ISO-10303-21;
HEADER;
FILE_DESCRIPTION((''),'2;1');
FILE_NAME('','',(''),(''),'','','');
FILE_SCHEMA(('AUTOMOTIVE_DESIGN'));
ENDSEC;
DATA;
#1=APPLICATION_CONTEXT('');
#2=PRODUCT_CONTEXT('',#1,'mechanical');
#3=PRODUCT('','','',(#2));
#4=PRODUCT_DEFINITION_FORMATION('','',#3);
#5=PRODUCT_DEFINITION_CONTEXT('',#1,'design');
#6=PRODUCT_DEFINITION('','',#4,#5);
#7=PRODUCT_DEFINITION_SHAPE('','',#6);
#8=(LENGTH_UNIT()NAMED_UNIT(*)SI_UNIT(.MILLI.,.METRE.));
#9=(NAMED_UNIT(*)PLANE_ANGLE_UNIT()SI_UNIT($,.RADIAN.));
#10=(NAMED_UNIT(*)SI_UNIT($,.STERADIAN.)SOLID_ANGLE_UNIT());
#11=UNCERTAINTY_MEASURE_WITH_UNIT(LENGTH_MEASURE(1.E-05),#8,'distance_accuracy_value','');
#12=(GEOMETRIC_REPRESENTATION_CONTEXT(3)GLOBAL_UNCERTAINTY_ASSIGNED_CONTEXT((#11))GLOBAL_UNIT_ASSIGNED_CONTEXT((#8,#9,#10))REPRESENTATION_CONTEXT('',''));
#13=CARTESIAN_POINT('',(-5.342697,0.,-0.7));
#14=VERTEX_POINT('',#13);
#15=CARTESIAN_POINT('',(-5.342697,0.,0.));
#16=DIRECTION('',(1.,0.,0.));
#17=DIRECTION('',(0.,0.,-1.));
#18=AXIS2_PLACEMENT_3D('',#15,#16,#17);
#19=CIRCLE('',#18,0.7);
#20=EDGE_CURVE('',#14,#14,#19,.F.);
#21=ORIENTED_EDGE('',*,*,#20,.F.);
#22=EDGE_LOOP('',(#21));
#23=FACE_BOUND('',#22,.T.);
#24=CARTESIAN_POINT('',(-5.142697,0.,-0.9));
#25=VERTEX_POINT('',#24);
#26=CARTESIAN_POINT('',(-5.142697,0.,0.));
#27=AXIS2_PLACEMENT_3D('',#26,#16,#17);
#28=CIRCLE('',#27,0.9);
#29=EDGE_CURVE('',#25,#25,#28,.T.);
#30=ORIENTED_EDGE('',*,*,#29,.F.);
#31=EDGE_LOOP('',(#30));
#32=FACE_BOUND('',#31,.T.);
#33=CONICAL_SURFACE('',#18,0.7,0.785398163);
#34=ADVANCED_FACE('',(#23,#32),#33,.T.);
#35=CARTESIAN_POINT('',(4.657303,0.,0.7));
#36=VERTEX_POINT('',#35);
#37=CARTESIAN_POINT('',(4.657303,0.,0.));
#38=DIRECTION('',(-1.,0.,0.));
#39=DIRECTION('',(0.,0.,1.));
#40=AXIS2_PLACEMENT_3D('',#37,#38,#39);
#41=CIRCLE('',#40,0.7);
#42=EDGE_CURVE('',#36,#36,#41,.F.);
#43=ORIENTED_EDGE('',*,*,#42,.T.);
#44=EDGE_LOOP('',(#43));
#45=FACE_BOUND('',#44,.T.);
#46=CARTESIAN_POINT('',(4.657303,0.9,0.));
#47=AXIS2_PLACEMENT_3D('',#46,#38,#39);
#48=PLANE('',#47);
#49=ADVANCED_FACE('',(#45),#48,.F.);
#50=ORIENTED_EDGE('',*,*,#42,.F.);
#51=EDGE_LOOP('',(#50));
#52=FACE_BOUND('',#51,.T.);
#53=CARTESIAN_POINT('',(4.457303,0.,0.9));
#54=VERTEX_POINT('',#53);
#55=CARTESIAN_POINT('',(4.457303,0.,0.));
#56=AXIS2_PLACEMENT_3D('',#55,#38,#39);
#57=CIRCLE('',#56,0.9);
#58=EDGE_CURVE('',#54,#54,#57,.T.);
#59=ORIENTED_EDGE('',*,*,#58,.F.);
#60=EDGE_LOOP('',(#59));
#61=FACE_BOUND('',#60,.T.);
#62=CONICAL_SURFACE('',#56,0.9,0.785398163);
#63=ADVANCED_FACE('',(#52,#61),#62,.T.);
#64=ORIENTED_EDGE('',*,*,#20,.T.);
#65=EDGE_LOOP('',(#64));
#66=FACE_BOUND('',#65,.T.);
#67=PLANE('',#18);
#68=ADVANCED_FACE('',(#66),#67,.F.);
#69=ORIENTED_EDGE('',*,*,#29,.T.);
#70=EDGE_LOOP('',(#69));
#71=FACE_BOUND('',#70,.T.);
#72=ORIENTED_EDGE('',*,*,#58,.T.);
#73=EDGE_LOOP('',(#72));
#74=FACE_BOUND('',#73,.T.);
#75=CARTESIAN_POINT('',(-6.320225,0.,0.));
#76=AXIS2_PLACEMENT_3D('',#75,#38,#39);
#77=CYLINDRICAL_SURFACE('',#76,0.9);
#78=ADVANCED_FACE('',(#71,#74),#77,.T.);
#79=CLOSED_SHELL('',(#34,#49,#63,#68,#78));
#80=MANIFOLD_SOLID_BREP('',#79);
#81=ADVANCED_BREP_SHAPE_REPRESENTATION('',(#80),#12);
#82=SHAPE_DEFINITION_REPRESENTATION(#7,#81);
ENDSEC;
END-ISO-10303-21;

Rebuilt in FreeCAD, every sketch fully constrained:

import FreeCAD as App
import Part
import Sketcher
from FreeCAD import Vector


def edges_at(feature, points):
    """Names of the edges that pass closest to the given points."""
    edges = feature.Shape.Edges
    near = lambda p: min(range(len(edges)), key=lambda i: edges[i].distToShape(Part.Vertex(*p))[0])
    return sorted({f"Edge{near(p) + 1}" for p in points})

doc = App.newDocument("Part")
params = doc.addObject("Spreadsheet::Sheet", "Params")
for row, (alias, value) in enumerate([
    ("sketch1_width", "10 mm"),
    ("sketch1_height", "0.9 mm"),
    ("revolution_angle", "360 deg"),
    ("chamfer_size", "0.2 mm"),
], start=1):
    params.set(f"A{row}", alias)
    params.set(f"B{row}", "=" + value)
    params.setAlias(f"B{row}", alias)

body = doc.addObject("PartDesign::Body", "Body")

# Sketch on XY plane
sketch1 = body.newObject("Sketcher::SketchObject", "Sketch")
sketch1.AttachmentSupport = (doc.getObject("XY_Plane"), [""])
sketch1.MapMode = "FlatFace"
sketch1.addGeometry([
    Part.LineSegment(Vector(-5.3, 0.9, 0), Vector(-5.3, 0, 0)),
    Part.LineSegment(Vector(-5.3, 0, 0), Vector(4.7, 0, 0)),
    Part.LineSegment(Vector(4.7, 0, 0), Vector(4.7, 0.9, 0)),
    Part.LineSegment(Vector(4.7, 0.9, 0), Vector(-5.3, 0.9, 0)),
], False)
sketch1.addConstraint([
    Sketcher.Constraint("Coincident", 0, 2, 1, 1),
    Sketcher.Constraint("Coincident", 1, 2, 2, 1),
    Sketcher.Constraint("Coincident", 2, 2, 3, 1),
    Sketcher.Constraint("Coincident", 3, 2, 0, 1),
    Sketcher.Constraint("Vertical", 0),
    Sketcher.Constraint("Horizontal", 1),
    Sketcher.Constraint("Vertical", 2),
    Sketcher.Constraint("Horizontal", 3),
    Sketcher.Constraint("PointOnObject", 0, 2, -1),
    Sketcher.Constraint("DistanceX", 1, 1, 1, 2, 10.0),
    Sketcher.Constraint("DistanceY", 0, 2, 0, 1, 0.9),
    Sketcher.Constraint("DistanceX", 0, 2, -1, 1, 5.342697),
])
sketch1.setExpression("Constraints[9]", "Params.sketch1_width")
sketch1.setExpression("Constraints[10]", "Params.sketch1_height")
revolution = body.newObject("PartDesign::Revolution", "Revolution")
revolution.Profile = sketch1
revolution.ReferenceAxis = (sketch1, ["H_Axis"])
revolution.setExpression("Angle", "Params.revolution_angle")
doc.recompute()

chamfer = body.newObject("PartDesign::Chamfer", "Chamfer")
chamfer.Base = (revolution, edges_at(revolution, [(4.657, 0, -0.9), (-5.343, 0, -0.9)]))
chamfer.setExpression("Size", "Params.chamfer_size")

doc.recompute()
